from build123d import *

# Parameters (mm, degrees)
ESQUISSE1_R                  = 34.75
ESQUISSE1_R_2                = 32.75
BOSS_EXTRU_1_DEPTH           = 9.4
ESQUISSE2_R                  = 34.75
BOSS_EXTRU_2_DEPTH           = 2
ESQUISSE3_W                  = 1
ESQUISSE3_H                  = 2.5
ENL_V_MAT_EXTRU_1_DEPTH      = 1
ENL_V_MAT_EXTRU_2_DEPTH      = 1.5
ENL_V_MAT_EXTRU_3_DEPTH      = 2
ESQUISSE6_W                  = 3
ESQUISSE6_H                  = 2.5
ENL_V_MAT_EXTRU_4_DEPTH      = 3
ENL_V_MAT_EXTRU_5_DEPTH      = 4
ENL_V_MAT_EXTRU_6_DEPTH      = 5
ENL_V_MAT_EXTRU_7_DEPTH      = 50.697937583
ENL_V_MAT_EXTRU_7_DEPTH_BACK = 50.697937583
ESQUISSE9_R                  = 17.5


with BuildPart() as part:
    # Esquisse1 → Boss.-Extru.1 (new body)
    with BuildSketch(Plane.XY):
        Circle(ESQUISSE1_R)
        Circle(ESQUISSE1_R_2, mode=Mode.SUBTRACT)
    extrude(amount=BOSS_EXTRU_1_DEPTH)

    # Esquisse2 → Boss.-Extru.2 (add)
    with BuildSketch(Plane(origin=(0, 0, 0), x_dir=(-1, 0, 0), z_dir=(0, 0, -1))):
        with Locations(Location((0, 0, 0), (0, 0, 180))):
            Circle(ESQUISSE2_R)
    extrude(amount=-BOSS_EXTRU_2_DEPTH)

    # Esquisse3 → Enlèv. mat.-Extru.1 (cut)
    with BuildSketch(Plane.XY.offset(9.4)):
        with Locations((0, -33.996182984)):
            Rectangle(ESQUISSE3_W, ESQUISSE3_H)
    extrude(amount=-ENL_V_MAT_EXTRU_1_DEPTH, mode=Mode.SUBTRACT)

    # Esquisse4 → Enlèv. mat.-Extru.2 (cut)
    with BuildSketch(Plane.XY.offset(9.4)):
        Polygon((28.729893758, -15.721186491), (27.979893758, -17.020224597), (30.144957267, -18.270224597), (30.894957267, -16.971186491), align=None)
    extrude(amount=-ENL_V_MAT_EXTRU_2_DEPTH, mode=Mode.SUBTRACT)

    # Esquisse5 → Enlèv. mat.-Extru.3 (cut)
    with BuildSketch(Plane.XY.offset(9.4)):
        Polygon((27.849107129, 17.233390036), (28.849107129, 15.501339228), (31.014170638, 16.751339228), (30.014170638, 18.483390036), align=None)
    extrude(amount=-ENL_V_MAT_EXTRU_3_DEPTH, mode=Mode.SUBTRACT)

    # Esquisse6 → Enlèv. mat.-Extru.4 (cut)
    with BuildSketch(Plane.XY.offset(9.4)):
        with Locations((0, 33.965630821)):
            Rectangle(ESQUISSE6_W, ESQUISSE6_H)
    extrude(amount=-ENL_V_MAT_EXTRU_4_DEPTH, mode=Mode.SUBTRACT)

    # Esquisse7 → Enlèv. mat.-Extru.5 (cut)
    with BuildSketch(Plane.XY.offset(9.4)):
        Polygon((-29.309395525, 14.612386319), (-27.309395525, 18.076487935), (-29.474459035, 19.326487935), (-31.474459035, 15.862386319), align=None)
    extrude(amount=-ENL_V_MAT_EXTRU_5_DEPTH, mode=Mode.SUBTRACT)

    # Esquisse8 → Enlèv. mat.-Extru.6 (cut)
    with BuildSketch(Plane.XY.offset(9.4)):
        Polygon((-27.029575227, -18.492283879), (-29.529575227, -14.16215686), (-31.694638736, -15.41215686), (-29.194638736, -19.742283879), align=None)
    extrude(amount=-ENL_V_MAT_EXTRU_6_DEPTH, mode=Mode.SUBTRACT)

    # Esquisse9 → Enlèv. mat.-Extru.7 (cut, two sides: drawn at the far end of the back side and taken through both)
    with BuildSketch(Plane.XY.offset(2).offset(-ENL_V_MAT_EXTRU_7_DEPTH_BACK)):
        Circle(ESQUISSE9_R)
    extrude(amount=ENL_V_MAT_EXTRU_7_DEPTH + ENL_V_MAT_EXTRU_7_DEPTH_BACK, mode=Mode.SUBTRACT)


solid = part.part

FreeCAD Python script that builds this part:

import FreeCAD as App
import Part
import Sketcher
from FreeCAD import Vector
Q = App.Units.Quantity

doc = App.newDocument("Part")
body = doc.addObject("PartDesign::Body", "Body")

# Sketch on XY plane
sketch1 = body.newObject("Sketcher::SketchObject", "Sketch")
sketch1.AttachmentSupport = (doc.getObject("XY_Plane"), [""])
sketch1.MapMode = "FlatFace"
sketch1.addGeometry(Part.Circle(Vector(0, 0, 0), Vector(0, 0, 1), 35), False)
sketch1.addGeometry(Part.Circle(Vector(0, 0, 0), Vector(0, 0, 1), 33), False)
sketch1.addConstraint(Sketcher.Constraint("Coincident", 0, 3, -1, 1))
sketch1.addConstraint(Sketcher.Constraint("Coincident", 1, 3, -1, 1))
sketch1.addConstraint(Sketcher.Constraint("Diameter", 0, Q("69.5 mm")))
sketch1.addConstraint(Sketcher.Constraint("Diameter", 1, Q("65.5 mm")))
pad1 = body.newObject("PartDesign::Pad", "Pad")
pad1.Profile = sketch1
pad1.Length = 9.4

# Sketch on XY plane
sketch2 = body.newObject("Sketcher::SketchObject", "Sketch001")
sketch2.AttachmentSupport = (doc.getObject("XY_Plane"), [""])
sketch2.MapMode = "FlatFace"
sketch2.addGeometry(Part.Circle(Vector(0, 0, 0), Vector(0, 0, 1), 35), False)
sketch2.addConstraint(Sketcher.Constraint("Coincident", 0, 3, -1, 1))
sketch2.addConstraint(Sketcher.Constraint("Diameter", 0, Q("69.5 mm")))
pad2 = body.newObject("PartDesign::Pad", "Pad001")
pad2.Profile = sketch2
pad2.Length = 2

# Sketch on XY plane
sketch3 = body.newObject("Sketcher::SketchObject", "Sketch002")
sketch3.AttachmentSupport = (doc.getObject("XY_Plane"), [""])
sketch3.MapMode = "FlatFace"
sketch3.AttachmentOffset = App.Placement(Vector(0, 0, 9.4), App.Rotation())
sketch3.addGeometry(Part.LineSegment(Vector(-0.5, -32.7, 0), Vector(-0.5, -35.2, 0)), False)
sketch3.addGeometry(Part.LineSegment(Vector(-0.5, -35.2, 0), Vector(0.5, -35.2, 0)), False)
sketch3.addGeometry(Part.LineSegment(Vector(0.5, -35.2, 0), Vector(0.5, -32.7, 0)), False)
sketch3.addGeometry(Part.LineSegment(Vector(0.5, -32.7, 0), Vector(-0.5, -32.7, 0)), False)
sketch3.addConstraint(Sketcher.Constraint("Coincident", 0, 2, 1, 1))
sketch3.addConstraint(Sketcher.Constraint("Coincident", 1, 2, 2, 1))
sketch3.addConstraint(Sketcher.Constraint("Coincident", 2, 2, 3, 1))
sketch3.addConstraint(Sketcher.Constraint("Coincident", 3, 2, 0, 1))
sketch3.addConstraint(Sketcher.Constraint("Vertical", 0))
sketch3.addConstraint(Sketcher.Constraint("Horizontal", 1))
sketch3.addConstraint(Sketcher.Constraint("Vertical", 2))
sketch3.addConstraint(Sketcher.Constraint("Horizontal", 3))
sketch3.addConstraint(Sketcher.Constraint("DistanceX", 1, 1, 1, 2, Q("1 mm")))
sketch3.addConstraint(Sketcher.Constraint("DistanceY", 0, 2, 0, 1, Q("2.5 mm")))
sketch3.addConstraint(Sketcher.Constraint("DistanceX", 0, 2, -1, 1, Q("0.5 mm")))
sketch3.addConstraint(Sketcher.Constraint("DistanceY", 0, 2, -1, 1, Q("35.246183 mm")))
pocket1 = body.newObject("PartDesign::Pocket", "Pocket")
pocket1.Profile = sketch3
pocket1.Length = 1

# Sketch on XY plane
sketch4 = body.newObject("Sketcher::SketchObject", "Sketch003")
sketch4.AttachmentSupport = (doc.getObject("XY_Plane"), [""])
sketch4.MapMode = "FlatFace"
sketch4.AttachmentOffset = App.Placement(Vector(0, 0, 9.4), App.Rotation())
sketch4.addGeometry(Part.LineSegment(Vector(28.7, -15.7, 0), Vector(28, -17, 0)), False)
sketch4.addGeometry(Part.LineSegment(Vector(28, -17, 0), Vector(30.1, -18.3, 0)), False)
sketch4.addGeometry(Part.LineSegment(Vector(30.1, -18.3, 0), Vector(30.9, -17, 0)), False)
sketch4.addGeometry(Part.LineSegment(Vector(30.9, -17, 0), Vector(28.7, -15.7, 0)), False)
sketch4.addConstraint(Sketcher.Constraint("Coincident", 0, 2, 1, 1))
sketch4.addConstraint(Sketcher.Constraint("Coincident", 1, 2, 2, 1))
sketch4.addConstraint(Sketcher.Constraint("Coincident", 2, 2, 3, 1))
sketch4.addConstraint(Sketcher.Constraint("Coincident", 3, 2, 0, 1))
sketch4.addConstraint(Sketcher.Constraint("Perpendicular", 0, 1))
sketch4.addConstraint(Sketcher.Constraint("Perpendicular", 1, 2))
sketch4.addConstraint(Sketcher.Constraint("Perpendicular", 2, 3))
sketch4.addConstraint(Sketcher.Constraint("Angle", 0, Q("-120 deg")))
sketch4.addConstraint(Sketcher.Constraint("Distance", 0, Q("1.5 mm")))
sketch4.addConstraint(Sketcher.Constraint("Distance", 1, Q("2.5 mm")))
sketch4.addConstraint(Sketcher.Constraint("DistanceX", -1, 1, 0, 2, Q("27.979894 mm")))
sketch4.addConstraint(Sketcher.Constraint("DistanceY", 0, 2, -1, 1, Q("17.020225 mm")))
pocket2 = body.newObject("PartDesign::Pocket", "Pocket001")
pocket2.Profile = sketch4
pocket2.Length = 1.5

# Sketch on XY plane
sketch5 = body.newObject("Sketcher::SketchObject", "Sketch004")
sketch5.AttachmentSupport = (doc.getObject("XY_Plane"), [""])
sketch5.MapMode = "FlatFace"
sketch5.AttachmentOffset = App.Placement(Vector(0, 0, 9.4), App.Rotation())
sketch5.addGeometry(Part.LineSegment(Vector(27.8, 17.2, 0), Vector(28.8, 15.5, 0)), False)
sketch5.addGeometry(Part.LineSegment(Vector(28.8, 15.5, 0), Vector(31, 16.8, 0)), False)
sketch5.addGeometry(Part.LineSegment(Vector(31, 16.8, 0), Vector(30, 18.5, 0)), False)
sketch5.addGeometry(Part.LineSegment(Vector(30, 18.5, 0), Vector(27.8, 17.2, 0)), False)
sketch5.addConstraint(Sketcher.Constraint("Coincident", 0, 2, 1, 1))
sketch5.addConstraint(Sketcher.Constraint("Coincident", 1, 2, 2, 1))
sketch5.addConstraint(Sketcher.Constraint("Coincident", 2, 2, 3, 1))
sketch5.addConstraint(Sketcher.Constraint("Coincident", 3, 2, 0, 1))
sketch5.addConstraint(Sketcher.Constraint("Perpendicular", 0, 1))
sketch5.addConstraint(Sketcher.Constraint("Perpendicular", 1, 2))
sketch5.addConstraint(Sketcher.Constraint("Perpendicular", 2, 3))
sketch5.addConstraint(Sketcher.Constraint("Angle", 0, Q("-60 deg")))
sketch5.addConstraint(Sketcher.Constraint("Distance", 0, Q("2 mm")))
sketch5.addConstraint(Sketcher.Constraint("Distance", 1, Q("2.5 mm")))
sketch5.addConstraint(Sketcher.Constraint("DistanceY", -1, 1, 0, 2, Q("15.501339 mm")))
sketch5.addConstraint(Sketcher.Constraint("DistanceX", -1, 1, 1, 2, Q("31.014171 mm")))
pocket3 = body.newObject("PartDesign::Pocket", "Pocket002")
pocket3.Profile = sketch5
pocket3.Length = 2

# Sketch on XY plane
sketch6 = body.newObject("Sketcher::SketchObject", "Sketch005")
sketch6.AttachmentSupport = (doc.getObject("XY_Plane"), [""])
sketch6.MapMode = "FlatFace"
sketch6.AttachmentOffset = App.Placement(Vector(0, 0, 9.4), App.Rotation())
sketch6.addGeometry(Part.LineSegment(Vector(-1.5, 35.2, 0), Vector(-1.5, 32.7, 0)), False)
sketch6.addGeometry(Part.LineSegment(Vector(-1.5, 32.7, 0), Vector(1.5, 32.7, 0)), False)
sketch6.addGeometry(Part.LineSegment(Vector(1.5, 32.7, 0), Vector(1.5, 35.2, 0)), False)
sketch6.addGeometry(Part.LineSegment(Vector(1.5, 35.2, 0), Vector(-1.5, 35.2, 0)), False)
sketch6.addConstraint(Sketcher.Constraint("Coincident", 0, 2, 1, 1))
sketch6.addConstraint(Sketcher.Constraint("Coincident", 1, 2, 2, 1))
sketch6.addConstraint(Sketcher.Constraint("Coincident", 2, 2, 3, 1))
sketch6.addConstraint(Sketcher.Constraint("Coincident", 3, 2, 0, 1))
sketch6.addConstraint(Sketcher.Constraint("Vertical", 0))
sketch6.addConstraint(Sketcher.Constraint("Horizontal", 1))
sketch6.addConstraint(Sketcher.Constraint("Vertical", 2))
sketch6.addConstraint(Sketcher.Constraint("Horizontal", 3))
sketch6.addConstraint(Sketcher.Constraint("DistanceX", 1, 1, 1, 2, Q("3 mm")))
sketch6.addConstraint(Sketcher.Constraint("DistanceY", 0, 2, 0, 1, Q("2.5 mm")))
sketch6.addConstraint(Sketcher.Constraint("DistanceX", 0, 2, -1, 1, Q("1.5 mm")))
sketch6.addConstraint(Sketcher.Constraint("DistanceY", -1, 1, 0, 2, Q("32.715631 mm")))
pocket4 = body.newObject("PartDesign::Pocket", "Pocket003")
pocket4.Profile = sketch6
pocket4.Length = 3

# Sketch on XY plane
sketch7 = body.newObject("Sketcher::SketchObject", "Sketch006")
sketch7.AttachmentSupport = (doc.getObject("XY_Plane"), [""])
sketch7.MapMode = "FlatFace"
sketch7.AttachmentOffset = App.Placement(Vector(0, 0, 9.4), App.Rotation())
sketch7.addGeometry(Part.LineSegment(Vector(-29.3, 14.6, 0), Vector(-27.3, 18.1, 0)), False)
sketch7.addGeometry(Part.LineSegment(Vector(-27.3, 18.1, 0), Vector(-29.5, 19.3, 0)), False)
sketch7.addGeometry(Part.LineSegment(Vector(-29.5, 19.3, 0), Vector(-31.5, 15.9, 0)), False)
sketch7.addGeometry(Part.LineSegment(Vector(-31.5, 15.9, 0), Vector(-29.3, 14.6, 0)), False)
sketch7.addConstraint(Sketcher.Constraint("Coincident", 0, 2, 1, 1))
sketch7.addConstraint(Sketcher.Constraint("Coincident", 1, 2, 2, 1))
sketch7.addConstraint(Sketcher.Constraint("Coincident", 2, 2, 3, 1))
sketch7.addConstraint(Sketcher.Constraint("Coincident", 3, 2, 0, 1))
sketch7.addConstraint(Sketcher.Constraint("Perpendicular", 0, 1))
sketch7.addConstraint(Sketcher.Constraint("Perpendicular", 1, 2))
sketch7.addConstraint(Sketcher.Constraint("Perpendicular", 2, 3))
sketch7.addConstraint(Sketcher.Constraint("Angle", 0, Q("60 deg")))
sketch7.addConstraint(Sketcher.Constraint("Distance", 0, Q("4 mm")))
sketch7.addConstraint(Sketcher.Constraint("Distance", 1, Q("2.5 mm")))
sketch7.addConstraint(Sketcher.Constraint("DistanceX", 1, 2, -1, 1, Q("29.474459 mm")))
sketch7.addConstraint(Sketcher.Constraint("DistanceY", -1, 1, 0, 2, Q("18.076488 mm")))
pocket5 = body.newObject("PartDesign::Pocket", "Pocket004")
pocket5.Profile = sketch7
pocket5.Length = 4

# Sketch on XY plane
sketch8 = body.newObject("Sketcher::SketchObject", "Sketch007")
sketch8.AttachmentSupport = (doc.getObject("XY_Plane"), [""])
sketch8.MapMode = "FlatFace"
sketch8.AttachmentOffset = App.Placement(Vector(0, 0, 9.4), App.Rotation())
sketch8.addGeometry(Part.LineSegment(Vector(-27, -18.5, 0), Vector(-29.5, -14.2, 0)), False)
sketch8.addGeometry(Part.LineSegment(Vector(-29.5, -14.2, 0), Vector(-31.7, -15.4, 0)), False)
sketch8.addGeometry(Part.LineSegment(Vector(-31.7, -15.4, 0), Vector(-29.2, -19.7, 0)), False)
sketch8.addGeometry(Part.LineSegment(Vector(-29.2, -19.7, 0), Vector(-27, -18.5, 0)), False)
sketch8.addConstraint(Sketcher.Constraint("Coincident", 0, 2, 1, 1))
sketch8.addConstraint(Sketcher.Constraint("Coincident", 1, 2, 2, 1))
sketch8.addConstraint(Sketcher.Constraint("Coincident", 2, 2, 3, 1))
sketch8.addConstraint(Sketcher.Constraint("Coincident", 3, 2, 0, 1))
sketch8.addConstraint(Sketcher.Constraint("Perpendicular", 0, 1))
sketch8.addConstraint(Sketcher.Constraint("Perpendicular", 1, 2))
sketch8.addConstraint(Sketcher.Constraint("Perpendicular", 2, 3))
sketch8.addConstraint(Sketcher.Constraint("Angle", 0, Q("120 deg")))
sketch8.addConstraint(Sketcher.Constraint("Distance", 0, Q("5 mm")))
sketch8.addConstraint(Sketcher.Constraint("Distance", 1, Q("2.5 mm")))
sketch8.addConstraint(Sketcher.Constraint("DistanceX", 1, 2, -1, 1, Q("31.694639 mm")))
sketch8.addConstraint(Sketcher.Constraint("DistanceY", 0, 2, -1, 1, Q("14.162157 mm")))
pocket6 = body.newObject("PartDesign::Pocket", "Pocket005")
pocket6.Profile = sketch8
pocket6.Length = 5

# Sketch on XY plane
sketch9 = body.newObject("Sketcher::SketchObject", "Sketch008")
sketch9.AttachmentSupport = (doc.getObject("XY_Plane"), [""])
sketch9.MapMode = "FlatFace"
sketch9.AttachmentOffset = App.Placement(Vector(0, 0, 2), App.Rotation())
sketch9.addGeometry(Part.Circle(Vector(0, 0, 0), Vector(0, 0, 1), 18), False)
sketch9.addConstraint(Sketcher.Constraint("Coincident", 0, 3, -1, 1))
sketch9.addConstraint(Sketcher.Constraint("Diameter", 0, Q("35 mm")))
pocket7 = body.newObject("PartDesign::Pocket", "Pocket006")
pocket7.Profile = sketch9
pocket7.Type = "ThroughAll"
pocket7.Midplane = True

doc.recompute()
